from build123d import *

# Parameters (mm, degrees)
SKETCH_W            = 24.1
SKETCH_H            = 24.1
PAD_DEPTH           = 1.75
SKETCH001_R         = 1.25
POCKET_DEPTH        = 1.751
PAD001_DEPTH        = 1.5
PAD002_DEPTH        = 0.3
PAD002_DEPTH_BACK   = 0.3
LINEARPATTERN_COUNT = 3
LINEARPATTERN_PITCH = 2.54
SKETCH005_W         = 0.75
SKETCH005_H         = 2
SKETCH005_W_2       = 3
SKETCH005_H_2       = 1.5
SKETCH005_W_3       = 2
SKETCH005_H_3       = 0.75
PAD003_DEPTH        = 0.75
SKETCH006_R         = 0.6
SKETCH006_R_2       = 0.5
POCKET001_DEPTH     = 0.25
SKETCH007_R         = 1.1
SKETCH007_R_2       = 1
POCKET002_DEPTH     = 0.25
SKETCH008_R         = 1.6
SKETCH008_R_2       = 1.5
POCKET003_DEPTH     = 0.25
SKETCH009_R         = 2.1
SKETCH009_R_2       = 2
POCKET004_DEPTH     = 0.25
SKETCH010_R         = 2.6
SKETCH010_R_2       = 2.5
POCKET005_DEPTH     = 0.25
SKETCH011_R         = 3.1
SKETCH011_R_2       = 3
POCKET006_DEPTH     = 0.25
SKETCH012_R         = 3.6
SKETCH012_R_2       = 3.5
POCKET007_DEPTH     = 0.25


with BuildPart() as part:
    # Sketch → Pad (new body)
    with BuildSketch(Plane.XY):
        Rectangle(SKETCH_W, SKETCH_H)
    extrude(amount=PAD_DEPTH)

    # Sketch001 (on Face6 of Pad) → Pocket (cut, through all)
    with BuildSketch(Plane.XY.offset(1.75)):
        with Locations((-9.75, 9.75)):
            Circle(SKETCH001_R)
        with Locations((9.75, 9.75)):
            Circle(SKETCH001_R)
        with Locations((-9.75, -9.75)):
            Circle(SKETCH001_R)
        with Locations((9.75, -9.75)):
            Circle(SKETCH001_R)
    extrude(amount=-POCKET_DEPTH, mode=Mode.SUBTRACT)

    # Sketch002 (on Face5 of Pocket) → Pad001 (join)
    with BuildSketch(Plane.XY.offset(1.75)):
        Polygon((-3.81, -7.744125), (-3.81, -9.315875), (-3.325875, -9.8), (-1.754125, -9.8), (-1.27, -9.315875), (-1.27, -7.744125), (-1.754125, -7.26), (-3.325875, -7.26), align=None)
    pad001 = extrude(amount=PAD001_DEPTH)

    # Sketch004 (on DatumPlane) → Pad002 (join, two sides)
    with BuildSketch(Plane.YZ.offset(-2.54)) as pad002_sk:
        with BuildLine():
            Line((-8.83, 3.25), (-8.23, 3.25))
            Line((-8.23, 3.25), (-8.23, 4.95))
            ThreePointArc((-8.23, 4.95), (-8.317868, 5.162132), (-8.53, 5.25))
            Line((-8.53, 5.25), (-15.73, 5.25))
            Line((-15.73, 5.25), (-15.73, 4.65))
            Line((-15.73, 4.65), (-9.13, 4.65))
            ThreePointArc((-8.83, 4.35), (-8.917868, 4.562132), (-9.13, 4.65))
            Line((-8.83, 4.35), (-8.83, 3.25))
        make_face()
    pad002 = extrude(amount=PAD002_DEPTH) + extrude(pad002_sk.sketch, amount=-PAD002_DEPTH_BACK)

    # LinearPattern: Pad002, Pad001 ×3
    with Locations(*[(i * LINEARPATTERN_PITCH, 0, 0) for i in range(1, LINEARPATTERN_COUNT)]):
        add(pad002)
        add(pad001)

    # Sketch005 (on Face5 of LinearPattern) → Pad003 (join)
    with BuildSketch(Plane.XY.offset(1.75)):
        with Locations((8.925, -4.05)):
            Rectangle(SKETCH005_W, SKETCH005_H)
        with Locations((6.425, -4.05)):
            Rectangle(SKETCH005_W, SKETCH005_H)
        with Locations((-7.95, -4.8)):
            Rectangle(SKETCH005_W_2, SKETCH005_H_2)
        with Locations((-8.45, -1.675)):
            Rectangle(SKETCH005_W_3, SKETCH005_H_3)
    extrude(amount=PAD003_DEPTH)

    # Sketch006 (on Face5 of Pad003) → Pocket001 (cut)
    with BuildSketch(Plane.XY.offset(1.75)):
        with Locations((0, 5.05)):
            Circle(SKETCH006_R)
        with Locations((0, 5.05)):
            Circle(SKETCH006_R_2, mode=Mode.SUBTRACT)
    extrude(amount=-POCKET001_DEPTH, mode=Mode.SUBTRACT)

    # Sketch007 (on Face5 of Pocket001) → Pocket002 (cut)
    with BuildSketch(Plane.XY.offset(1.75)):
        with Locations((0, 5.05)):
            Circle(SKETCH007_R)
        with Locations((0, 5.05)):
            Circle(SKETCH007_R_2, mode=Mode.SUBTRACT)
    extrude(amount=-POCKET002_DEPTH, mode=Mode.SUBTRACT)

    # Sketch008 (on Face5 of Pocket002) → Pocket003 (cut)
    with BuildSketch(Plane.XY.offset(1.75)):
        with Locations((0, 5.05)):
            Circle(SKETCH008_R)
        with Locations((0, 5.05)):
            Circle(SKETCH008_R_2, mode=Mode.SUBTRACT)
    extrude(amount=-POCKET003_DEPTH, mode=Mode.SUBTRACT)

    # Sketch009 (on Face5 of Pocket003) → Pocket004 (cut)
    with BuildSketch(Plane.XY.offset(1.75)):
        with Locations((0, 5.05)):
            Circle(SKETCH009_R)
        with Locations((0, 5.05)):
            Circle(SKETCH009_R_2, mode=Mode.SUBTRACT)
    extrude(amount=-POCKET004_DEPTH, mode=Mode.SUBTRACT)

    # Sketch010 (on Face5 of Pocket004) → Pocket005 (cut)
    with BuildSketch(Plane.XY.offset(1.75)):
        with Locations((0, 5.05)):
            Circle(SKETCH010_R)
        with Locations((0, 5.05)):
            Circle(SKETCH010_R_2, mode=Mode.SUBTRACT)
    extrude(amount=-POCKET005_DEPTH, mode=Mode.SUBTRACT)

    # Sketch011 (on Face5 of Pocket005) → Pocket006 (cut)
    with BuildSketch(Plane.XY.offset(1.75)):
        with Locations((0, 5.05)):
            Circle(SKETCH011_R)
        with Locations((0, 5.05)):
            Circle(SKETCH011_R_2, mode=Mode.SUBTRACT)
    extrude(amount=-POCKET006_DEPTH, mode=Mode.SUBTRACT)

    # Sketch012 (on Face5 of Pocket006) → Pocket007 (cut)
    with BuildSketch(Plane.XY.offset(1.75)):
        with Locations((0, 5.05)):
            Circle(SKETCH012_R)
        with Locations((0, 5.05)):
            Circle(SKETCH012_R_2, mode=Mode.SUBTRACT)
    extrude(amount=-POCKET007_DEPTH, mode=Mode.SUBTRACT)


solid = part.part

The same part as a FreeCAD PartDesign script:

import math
import FreeCAD as App
import Part
import Sketcher
from FreeCAD import Vector
Q = App.Units.Quantity


def add_polygon(sketch, points):
    """Adds a closed chain of lines whose ends are joined by coincident constraints."""
    first, n = sketch.GeometryCount, len(points)
    for a, b in zip(points, points[1:] + points[:1]):
        sketch.addGeometry(Part.LineSegment(App.Vector(*a, 0), App.Vector(*b, 0)), False)
    for i in range(n):
        sketch.addConstraint(Sketcher.Constraint("Coincident", first + i, 2, first + (i + 1) % n, 1))

doc = App.newDocument("Part")
body = doc.addObject("PartDesign::Body", "Body")

sketch1 = doc.addObject("Sketcher::SketchObject", "Sketch")
body.addObject(sketch1)
sketch1.AttachmentSupport = (doc.XY_Plane, [""])
sketch1.MapMode = "FlatFace"
add_polygon(sketch1, [(-12, 12), (-12, -12), (12, -12), (12, 12)])
sketch1.addConstraint(Sketcher.Constraint("Vertical", 0))
sketch1.addConstraint(Sketcher.Constraint("Horizontal", 1))
sketch1.addConstraint(Sketcher.Constraint("Vertical", 2))
sketch1.addConstraint(Sketcher.Constraint("Horizontal", 3))
sketch1.addConstraint(Sketcher.Constraint("Symmetric", 0, 2, 2, 2, -1, 1))
sketch1.addConstraint(Sketcher.Constraint("Equal", 3, 0))
sketch1.addConstraint(Sketcher.Constraint("DistanceX", 1, 1, 1, 2, Q("24.1 mm")))
pad1 = doc.addObject("PartDesign::Pad", "Pad")
body.addObject(pad1)
pad1.Profile = sketch1
pad1.Length = 1.75

sketch2 = doc.addObject("Sketcher::SketchObject", "Sketch001")
body.addObject(sketch2)
sketch2.AttachmentSupport = (doc.XY_Plane, [""])
sketch2.MapMode = "FlatFace"
sketch2.AttachmentOffset = App.Placement(Vector(0, 0, 1.75), App.Rotation())
sketch2.addGeometry(Part.Circle(Vector(-9.8, 9.8, 0), Vector(0, 0, 1), 1.2), False)
sketch2.addGeometry(Part.Circle(Vector(9.8, 9.8, 0), Vector(0, 0, 1), 1.2), False)
sketch2.addGeometry(Part.Circle(Vector(-9.8, -9.8, 0), Vector(0, 0, 1), 1.2), False)
sketch2.addGeometry(Part.Circle(Vector(9.8, -9.8, 0), Vector(0, 0, 1), 1.2), False)
sketch2.addConstraint(Sketcher.Constraint("Equal", 0, 1))
sketch2.addConstraint(Sketcher.Constraint("Equal", 1, 2))
sketch2.addConstraint(Sketcher.Constraint("Equal", 2, 3))
sketch2.addConstraint(Sketcher.Constraint("Symmetric", 1, 3, 2, 3, -1, 1))
sketch2.addConstraint(Sketcher.Constraint("Symmetric", 0, 3, 3, 3, -1, 1))
sketch2.addConstraint(Sketcher.Constraint("Symmetric", 0, 3, 1, 3, -2))
sketch2.addConstraint(Sketcher.Constraint("Diameter", 0, Q("2.5 mm")))
sketch2.addConstraint(Sketcher.Constraint("DistanceX", 0, 3, 1, 3, Q("19.5 mm")))
sketch2.addConstraint(Sketcher.Constraint("DistanceY", 2, 3, 0, 3, Q("19.5 mm")))
pocket1 = doc.addObject("PartDesign::Pocket", "Pocket")
body.addObject(pocket1)
pocket1.Profile = sketch2
pocket1.Type = "ThroughAll"

sketch3 = doc.addObject("Sketcher::SketchObject", "Sketch002")
body.addObject(sketch3)
sketch3.AttachmentSupport = (doc.XY_Plane, [""])
sketch3.MapMode = "FlatFace"
sketch3.AttachmentOffset = App.Placement(Vector(0, 0, 1.75), App.Rotation())
add_polygon(sketch3, [(-3.8, -7.7), (-3.8, -9.3), (-3.3, -9.8), (-1.8, -9.8), (-1.3, -9.3), (-1.3, -7.7), (-1.8, -7.3), (-3.3, -7.3)])
sketch3.addConstraint(Sketcher.Constraint("Vertical", 0))
sketch3.addConstraint(Sketcher.Constraint("Horizontal", 2))
sketch3.addConstraint(Sketcher.Constraint("Vertical", 4))
sketch3.addConstraint(Sketcher.Constraint("Horizontal", 6))
sketch3.addConstraint(Sketcher.Constraint("Perpendicular", 1, 3))
sketch3.addConstraint(Sketcher.Constraint("Perpendicular", 3, 5))
sketch3.addConstraint(Sketcher.Constraint("Perpendicular", 5, 7))
sketch3.addConstraint(Sketcher.Constraint("Horizontal", 0, 2, 3, 2))
sketch3.addConstraint(Sketcher.Constraint("Horizontal", 4, 2, 7, 2))
sketch3.addConstraint(Sketcher.Constraint("Vertical", 2, 2, 5, 2))
sketch3.addConstraint(Sketcher.Constraint("Vertical", 1, 2, 6, 2))
sketch3.addConstraint(Sketcher.Constraint("Equal", 6, 0))
sketch3.addConstraint(Sketcher.Constraint("DistanceY", 1, 2, -1, 1, Q("9.8 mm")))
sketch3.addConstraint(Sketcher.Constraint("DistanceX", 0, 2, -1, 1, Q("3.81 mm")))
sketch3.addConstraint(Sketcher.Constraint("DistanceX", 3, 2, -1, 1, Q("1.27 mm")))
sketch3.addConstraint(Sketcher.Constraint("DistanceX", 2, 1, 2, 2, Q("1.57175 mm")))
pad2 = doc.addObject("PartDesign::Pad", "Pad001")
body.addObject(pad2)
pad2.Profile = sketch3
pad2.Length = 1.5

sketch4 = doc.addObject("Sketcher::SketchObject", "Sketch003")
body.addObject(sketch4)
sketch4.AttachmentSupport = (doc.YZ_Plane, [""])
sketch4.MapMode = "FlatFace"
sketch4.AttachmentOffset = App.Placement(Vector(0, 0, -2.54), App.Rotation())
sketch4.addGeometry(Part.LineSegment(Vector(-8.83, 3.25, 0), Vector(-8.23, 3.25, 0)), False)
sketch4.addGeometry(Part.LineSegment(Vector(-8.23, 3.25, 0), Vector(-8.23, 4.95, 0)), False)
sketch4.addGeometry(Part.ArcOfCircle(Part.Circle(Vector(-8.53, 4.95, 0), Vector(0, 0, 1), 0.3), math.radians(0), math.radians(90)), False)
sketch4.addGeometry(Part.LineSegment(Vector(-8.53, 5.25, 0), Vector(-15.73, 5.25, 0)), False)
sketch4.addGeometry(Part.LineSegment(Vector(-15.73, 5.25, 0), Vector(-15.73, 4.65, 0)), False)
sketch4.addGeometry(Part.LineSegment(Vector(-15.73, 4.65, 0), Vector(-9.13, 4.65, 0)), False)
sketch4.addGeometry(Part.ArcOfCircle(Part.Circle(Vector(-9.13, 4.35, 0), Vector(0, 0, 1), 0.3), math.radians(0), math.radians(90)), False)
sketch4.addGeometry(Part.LineSegment(Vector(-8.83, 4.35, 0), Vector(-8.83, 3.25, 0)), False)
sketch4.addConstraint(Sketcher.Constraint("Coincident", 0, 2, 1, 1))
sketch4.addConstraint(Sketcher.Constraint("Tangent", 1, 2, 2, 1))
sketch4.addConstraint(Sketcher.Constraint("Tangent", 2, 2, 3, 1))
sketch4.addConstraint(Sketcher.Constraint("Coincident", 3, 2, 4, 1))
sketch4.addConstraint(Sketcher.Constraint("Coincident", 4, 2, 5, 1))
sketch4.addConstraint(Sketcher.Constraint("Tangent", 5, 2, 6, 2))
sketch4.addConstraint(Sketcher.Constraint("Tangent", 6, 1, 7, 1))
sketch4.addConstraint(Sketcher.Constraint("Coincident", 7, 2, 0, 1))
sketch4.addConstraint(Sketcher.Constraint("Horizontal", 0))
sketch4.addConstraint(Sketcher.Constraint("Vertical", 1))
sketch4.addConstraint(Sketcher.Constraint("Horizontal", 3))
sketch4.addConstraint(Sketcher.Constraint("Vertical", 4))
sketch4.addConstraint(Sketcher.Constraint("Horizontal", 5))
sketch4.addConstraint(Sketcher.Constraint("Vertical", 7))
sketch4.addConstraint(Sketcher.Constraint("Equal", 2, 6))
sketch4.addConstraint(Sketcher.Constraint("Equal", 0, 4))
sketch4.addConstraint(Sketcher.Constraint("Radius", 2, Q("0.3 mm")))
sketch4.addConstraint(Sketcher.Constraint("DistanceX", 0, 1, 0, 2, Q("0.6 mm")))
sketch4.addConstraint(Sketcher.Constraint("DistanceX", 3, 2, 3, 1, Q("7.2 mm")))
sketch4.addConstraint(Sketcher.Constraint("DistanceY", 1, 1, 1, 2, Q("1.7 mm")))
sketch4.addConstraint(Sketcher.Constraint("DistanceX", 2, 3, -1, 1, Q("8.53 mm")))
sketch4.addConstraint(Sketcher.Constraint("DistanceY", -1, 1, 2, 3, Q("4.95 mm")))
pad3 = doc.addObject("PartDesign::Pad", "Pad002")
body.addObject(pad3)
pad3.Profile = sketch4
pad3.Type = "TwoLengths"
pad3.Length = 0.3
pad3.Length2 = 0.3
doc.recompute()

linearpattern = doc.addObject("PartDesign::LinearPattern", "LinearPattern")
body.addObject(linearpattern)
linearpattern.Originals = [pad3, pad2]
linearpattern.Direction = (doc.X_Axis, [""])
linearpattern.Mode = "offset"
linearpattern.Offset = 2.54
linearpattern.Occurrences = 3
body.Tip = linearpattern

sketch5 = doc.addObject("Sketcher::SketchObject", "Sketch004")
body.addObject(sketch5)
sketch5.AttachmentSupport = (doc.XY_Plane, [""])
sketch5.MapMode = "FlatFace"
sketch5.AttachmentOffset = App.Placement(Vector(0, 0, 1.75), App.Rotation())
add_polygon(sketch5, [(8.6, -3), (8.6, -5), (9.3, -5), (9.3, -3)])
add_polygon(sketch5, [(6, -3), (6, -5), (6.8, -5), (6.8, -3)])
add_polygon(sketch5, [(-9.4, -4), (-9.4, -5.5), (-6.5, -5.5), (-6.5, -4)])
add_polygon(sketch5, [(-9.4, -1.3), (-9.4, -2), (-7.5, -2), (-7.5, -1.3)])
sketch5.addConstraint(Sketcher.Constraint("Vertical", 0))
sketch5.addConstraint(Sketcher.Constraint("Horizontal", 1))
sketch5.addConstraint(Sketcher.Constraint("Vertical", 2))
sketch5.addConstraint(Sketcher.Constraint("Horizontal", 3))
sketch5.addConstraint(Sketcher.Constraint("Vertical", 4))
sketch5.addConstraint(Sketcher.Constraint("Horizontal", 5))
sketch5.addConstraint(Sketcher.Constraint("Vertical", 6))
sketch5.addConstraint(Sketcher.Constraint("Horizontal", 7))
sketch5.addConstraint(Sketcher.Constraint("Vertical", 8))
sketch5.addConstraint(Sketcher.Constraint("Horizontal", 9))
sketch5.addConstraint(Sketcher.Constraint("Vertical", 10))
sketch5.addConstraint(Sketcher.Constraint("Horizontal", 11))
sketch5.addConstraint(Sketcher.Constraint("Vertical", 12))
sketch5.addConstraint(Sketcher.Constraint("Horizontal", 13))
sketch5.addConstraint(Sketcher.Constraint("Vertical", 14))
sketch5.addConstraint(Sketcher.Constraint("Horizontal", 15))
sketch5.addConstraint(Sketcher.Constraint("Horizontal", 1, 2, 4, 2))
sketch5.addConstraint(Sketcher.Constraint("Horizontal", 3, 2, 6, 2))
sketch5.addConstraint(Sketcher.Constraint("Vertical", 11, 2, 12, 2))
sketch5.addConstraint(Sketcher.Constraint("Equal", 3, 5))
sketch5.addConstraint(Sketcher.Constraint("Equal", 15, 0))
sketch5.addConstraint(Sketcher.Constraint("Equal", 7, 12))
sketch5.addConstraint(Sketcher.Constraint("DistanceX", 9, 1, 9, 2, Q("3 mm")))
sketch5.addConstraint(Sketcher.Constraint("DistanceX", 13, 1, 13, 2, Q("2 mm")))
sketch5.addConstraint(Sketcher.Constraint("DistanceY", 8, 2, 8, 1, Q("1.5 mm")))
sketch5.addConstraint(Sketcher.Constraint("DistanceX", 8, 2, 0, 2, Q("18 mm")))
sketch5.addConstraint(Sketcher.Constraint("DistanceY", 4, 2, 10, 2, Q("1 mm")))
sketch5.addConstraint(Sketcher.Constraint("DistanceY", 11, 2, 12, 2, Q("2 mm")))
sketch5.addConstraint(Sketcher.Constraint("DistanceX", 1, 1, 1, 2, Q("0.75 mm")))
sketch5.addConstraint(Sketcher.Constraint("DistanceX", -1, 1, 1, 2, Q("9.3 mm")))
sketch5.addConstraint(Sketcher.Constraint("DistanceX", -1, 1, 5, 2, Q("6.8 mm")))
sketch5.addConstraint(Sketcher.Constraint("DistanceY", 14, 2, -1, 1, Q("1.3 mm")))
pad4 = doc.addObject("PartDesign::Pad", "Pad003")
body.addObject(pad4)
pad4.Profile = sketch5
pad4.Length = 0.75

sketch6 = doc.addObject("Sketcher::SketchObject", "Sketch005")
body.addObject(sketch6)
sketch6.AttachmentSupport = (doc.XY_Plane, [""])
sketch6.MapMode = "FlatFace"
sketch6.AttachmentOffset = App.Placement(Vector(0, 0, 1.75), App.Rotation())
sketch6.addGeometry(Part.Circle(Vector(0, 5, 0), Vector(0, 0, 1), 0.6), False)
sketch6.addGeometry(Part.Circle(Vector(0, 5, 0), Vector(0, 0, 1), 0.5), False)
sketch6.addConstraint(Sketcher.Constraint("Coincident", 1, 3, 0, 3))
sketch6.addConstraint(Sketcher.Constraint("PointOnObject", 0, 3, -2))
sketch6.addConstraint(Sketcher.Constraint("Diameter", 1, Q("1 mm")))
sketch6.addConstraint(Sketcher.Constraint("Diameter", 0, Q("1.2 mm")))
sketch6.addConstraint(Sketcher.Constraint("DistanceY", -1, 1, 0, 3, Q("5.05 mm")))
pocket2 = doc.addObject("PartDesign::Pocket", "Pocket001")
body.addObject(pocket2)
pocket2.Profile = sketch6
pocket2.Length = 0.25

sketch7 = doc.addObject("Sketcher::SketchObject", "Sketch006")
body.addObject(sketch7)
sketch7.AttachmentSupport = (doc.XY_Plane, [""])
sketch7.MapMode = "FlatFace"
sketch7.AttachmentOffset = App.Placement(Vector(0, 0, 1.75), App.Rotation())
sketch7.addGeometry(Part.Circle(Vector(0, 5, 0), Vector(0, 0, 1), 1.1), False)
sketch7.addGeometry(Part.Circle(Vector(0, 5, 0), Vector(0, 0, 1), 1), False)
sketch7.addConstraint(Sketcher.Constraint("Coincident", 1, 3, 0, 3))
sketch7.addConstraint(Sketcher.Constraint("PointOnObject", 0, 3, -2))
sketch7.addConstraint(Sketcher.Constraint("Diameter", 1, Q("2 mm")))
sketch7.addConstraint(Sketcher.Constraint("Diameter", 0, Q("2.2 mm")))
sketch7.addConstraint(Sketcher.Constraint("DistanceY", -1, 1, 0, 3, Q("5.05 mm")))
pocket3 = doc.addObject("PartDesign::Pocket", "Pocket002")
body.addObject(pocket3)
pocket3.Profile = sketch7
pocket3.Length = 0.25

sketch8 = doc.addObject("Sketcher::SketchObject", "Sketch007")
body.addObject(sketch8)
sketch8.AttachmentSupport = (doc.XY_Plane, [""])
sketch8.MapMode = "FlatFace"
sketch8.AttachmentOffset = App.Placement(Vector(0, 0, 1.75), App.Rotation())
sketch8.addGeometry(Part.Circle(Vector(0, 5, 0), Vector(0, 0, 1), 1.6), False)
sketch8.addGeometry(Part.Circle(Vector(0, 5, 0), Vector(0, 0, 1), 1.5), False)
sketch8.addConstraint(Sketcher.Constraint("Coincident", 1, 3, 0, 3))
sketch8.addConstraint(Sketcher.Constraint("PointOnObject", 0, 3, -2))
sketch8.addConstraint(Sketcher.Constraint("Diameter", 1, Q("3 mm")))
sketch8.addConstraint(Sketcher.Constraint("Diameter", 0, Q("3.2 mm")))
sketch8.addConstraint(Sketcher.Constraint("DistanceY", -1, 1, 0, 3, Q("5.05 mm")))
pocket4 = doc.addObject("PartDesign::Pocket", "Pocket003")
body.addObject(pocket4)
pocket4.Profile = sketch8
pocket4.Length = 0.25

sketch9 = doc.addObject("Sketcher::SketchObject", "Sketch008")
body.addObject(sketch9)
sketch9.AttachmentSupport = (doc.XY_Plane, [""])
sketch9.MapMode = "FlatFace"
sketch9.AttachmentOffset = App.Placement(Vector(0, 0, 1.75), App.Rotation())
sketch9.addGeometry(Part.Circle(Vector(0, 5, 0), Vector(0, 0, 1), 2.1), False)
sketch9.addGeometry(Part.Circle(Vector(0, 5, 0), Vector(0, 0, 1), 2), False)
sketch9.addConstraint(Sketcher.Constraint("Coincident", 1, 3, 0, 3))
sketch9.addConstraint(Sketcher.Constraint("PointOnObject", 0, 3, -2))
sketch9.addConstraint(Sketcher.Constraint("Diameter", 1, Q("4 mm")))
sketch9.addConstraint(Sketcher.Constraint("Diameter", 0, Q("4.2 mm")))
sketch9.addConstraint(Sketcher.Constraint("DistanceY", -1, 1, 0, 3, Q("5.05 mm")))
pocket5 = doc.addObject("PartDesign::Pocket", "Pocket004")
body.addObject(pocket5)
pocket5.Profile = sketch9
pocket5.Length = 0.25

sketch10 = doc.addObject("Sketcher::SketchObject", "Sketch009")
body.addObject(sketch10)
sketch10.AttachmentSupport = (doc.XY_Plane, [""])
sketch10.MapMode = "FlatFace"
sketch10.AttachmentOffset = App.Placement(Vector(0, 0, 1.75), App.Rotation())
sketch10.addGeometry(Part.Circle(Vector(0, 5, 0), Vector(0, 0, 1), 2.6), False)
sketch10.addGeometry(Part.Circle(Vector(0, 5, 0), Vector(0, 0, 1), 2.5), False)
sketch10.addConstraint(Sketcher.Constraint("Coincident", 1, 3, 0, 3))
sketch10.addConstraint(Sketcher.Constraint("PointOnObject", 0, 3, -2))
sketch10.addConstraint(Sketcher.Constraint("Diameter", 1, Q("5 mm")))
sketch10.addConstraint(Sketcher.Constraint("Diameter", 0, Q("5.2 mm")))
sketch10.addConstraint(Sketcher.Constraint("DistanceY", -1, 1, 0, 3, Q("5.05 mm")))
pocket6 = doc.addObject("PartDesign::Pocket", "Pocket005")
body.addObject(pocket6)
pocket6.Profile = sketch10
pocket6.Length = 0.25

sketch11 = doc.addObject("Sketcher::SketchObject", "Sketch010")
body.addObject(sketch11)
sketch11.AttachmentSupport = (doc.XY_Plane, [""])
sketch11.MapMode = "FlatFace"
sketch11.AttachmentOffset = App.Placement(Vector(0, 0, 1.75), App.Rotation())
sketch11.addGeometry(Part.Circle(Vector(0, 5, 0), Vector(0, 0, 1), 3.1), False)
sketch11.addGeometry(Part.Circle(Vector(0, 5, 0), Vector(0, 0, 1), 3), False)
sketch11.addConstraint(Sketcher.Constraint("Coincident", 1, 3, 0, 3))
sketch11.addConstraint(Sketcher.Constraint("PointOnObject", 0, 3, -2))
sketch11.addConstraint(Sketcher.Constraint("Diameter", 1, Q("6 mm")))
sketch11.addConstraint(Sketcher.Constraint("Diameter", 0, Q("6.2 mm")))
sketch11.addConstraint(Sketcher.Constraint("DistanceY", -1, 1, 0, 3, Q("5.05 mm")))
pocket7 = doc.addObject("PartDesign::Pocket", "Pocket006")
body.addObject(pocket7)
pocket7.Profile = sketch11
pocket7.Length = 0.25

sketch12 = doc.addObject("Sketcher::SketchObject", "Sketch011")
body.addObject(sketch12)
sketch12.AttachmentSupport = (doc.XY_Plane, [""])
sketch12.MapMode = "FlatFace"
sketch12.AttachmentOffset = App.Placement(Vector(0, 0, 1.75), App.Rotation())
sketch12.addGeometry(Part.Circle(Vector(0, 5, 0), Vector(0, 0, 1), 3.6), False)
sketch12.addGeometry(Part.Circle(Vector(0, 5, 0), Vector(0, 0, 1), 3.5), False)
sketch12.addConstraint(Sketcher.Constraint("Coincident", 1, 3, 0, 3))
sketch12.addConstraint(Sketcher.Constraint("PointOnObject", 0, 3, -2))
sketch12.addConstraint(Sketcher.Constraint("Diameter", 1, Q("7 mm")))
sketch12.addConstraint(Sketcher.Constraint("Diameter", 0, Q("7.2 mm")))
sketch12.addConstraint(Sketcher.Constraint("DistanceY", -1, 1, 0, 3, Q("5.05 mm")))
pocket8 = doc.addObject("PartDesign::Pocket", "Pocket007")
body.addObject(pocket8)
pocket8.Profile = sketch12
pocket8.Length = 0.25

doc.recompute()
